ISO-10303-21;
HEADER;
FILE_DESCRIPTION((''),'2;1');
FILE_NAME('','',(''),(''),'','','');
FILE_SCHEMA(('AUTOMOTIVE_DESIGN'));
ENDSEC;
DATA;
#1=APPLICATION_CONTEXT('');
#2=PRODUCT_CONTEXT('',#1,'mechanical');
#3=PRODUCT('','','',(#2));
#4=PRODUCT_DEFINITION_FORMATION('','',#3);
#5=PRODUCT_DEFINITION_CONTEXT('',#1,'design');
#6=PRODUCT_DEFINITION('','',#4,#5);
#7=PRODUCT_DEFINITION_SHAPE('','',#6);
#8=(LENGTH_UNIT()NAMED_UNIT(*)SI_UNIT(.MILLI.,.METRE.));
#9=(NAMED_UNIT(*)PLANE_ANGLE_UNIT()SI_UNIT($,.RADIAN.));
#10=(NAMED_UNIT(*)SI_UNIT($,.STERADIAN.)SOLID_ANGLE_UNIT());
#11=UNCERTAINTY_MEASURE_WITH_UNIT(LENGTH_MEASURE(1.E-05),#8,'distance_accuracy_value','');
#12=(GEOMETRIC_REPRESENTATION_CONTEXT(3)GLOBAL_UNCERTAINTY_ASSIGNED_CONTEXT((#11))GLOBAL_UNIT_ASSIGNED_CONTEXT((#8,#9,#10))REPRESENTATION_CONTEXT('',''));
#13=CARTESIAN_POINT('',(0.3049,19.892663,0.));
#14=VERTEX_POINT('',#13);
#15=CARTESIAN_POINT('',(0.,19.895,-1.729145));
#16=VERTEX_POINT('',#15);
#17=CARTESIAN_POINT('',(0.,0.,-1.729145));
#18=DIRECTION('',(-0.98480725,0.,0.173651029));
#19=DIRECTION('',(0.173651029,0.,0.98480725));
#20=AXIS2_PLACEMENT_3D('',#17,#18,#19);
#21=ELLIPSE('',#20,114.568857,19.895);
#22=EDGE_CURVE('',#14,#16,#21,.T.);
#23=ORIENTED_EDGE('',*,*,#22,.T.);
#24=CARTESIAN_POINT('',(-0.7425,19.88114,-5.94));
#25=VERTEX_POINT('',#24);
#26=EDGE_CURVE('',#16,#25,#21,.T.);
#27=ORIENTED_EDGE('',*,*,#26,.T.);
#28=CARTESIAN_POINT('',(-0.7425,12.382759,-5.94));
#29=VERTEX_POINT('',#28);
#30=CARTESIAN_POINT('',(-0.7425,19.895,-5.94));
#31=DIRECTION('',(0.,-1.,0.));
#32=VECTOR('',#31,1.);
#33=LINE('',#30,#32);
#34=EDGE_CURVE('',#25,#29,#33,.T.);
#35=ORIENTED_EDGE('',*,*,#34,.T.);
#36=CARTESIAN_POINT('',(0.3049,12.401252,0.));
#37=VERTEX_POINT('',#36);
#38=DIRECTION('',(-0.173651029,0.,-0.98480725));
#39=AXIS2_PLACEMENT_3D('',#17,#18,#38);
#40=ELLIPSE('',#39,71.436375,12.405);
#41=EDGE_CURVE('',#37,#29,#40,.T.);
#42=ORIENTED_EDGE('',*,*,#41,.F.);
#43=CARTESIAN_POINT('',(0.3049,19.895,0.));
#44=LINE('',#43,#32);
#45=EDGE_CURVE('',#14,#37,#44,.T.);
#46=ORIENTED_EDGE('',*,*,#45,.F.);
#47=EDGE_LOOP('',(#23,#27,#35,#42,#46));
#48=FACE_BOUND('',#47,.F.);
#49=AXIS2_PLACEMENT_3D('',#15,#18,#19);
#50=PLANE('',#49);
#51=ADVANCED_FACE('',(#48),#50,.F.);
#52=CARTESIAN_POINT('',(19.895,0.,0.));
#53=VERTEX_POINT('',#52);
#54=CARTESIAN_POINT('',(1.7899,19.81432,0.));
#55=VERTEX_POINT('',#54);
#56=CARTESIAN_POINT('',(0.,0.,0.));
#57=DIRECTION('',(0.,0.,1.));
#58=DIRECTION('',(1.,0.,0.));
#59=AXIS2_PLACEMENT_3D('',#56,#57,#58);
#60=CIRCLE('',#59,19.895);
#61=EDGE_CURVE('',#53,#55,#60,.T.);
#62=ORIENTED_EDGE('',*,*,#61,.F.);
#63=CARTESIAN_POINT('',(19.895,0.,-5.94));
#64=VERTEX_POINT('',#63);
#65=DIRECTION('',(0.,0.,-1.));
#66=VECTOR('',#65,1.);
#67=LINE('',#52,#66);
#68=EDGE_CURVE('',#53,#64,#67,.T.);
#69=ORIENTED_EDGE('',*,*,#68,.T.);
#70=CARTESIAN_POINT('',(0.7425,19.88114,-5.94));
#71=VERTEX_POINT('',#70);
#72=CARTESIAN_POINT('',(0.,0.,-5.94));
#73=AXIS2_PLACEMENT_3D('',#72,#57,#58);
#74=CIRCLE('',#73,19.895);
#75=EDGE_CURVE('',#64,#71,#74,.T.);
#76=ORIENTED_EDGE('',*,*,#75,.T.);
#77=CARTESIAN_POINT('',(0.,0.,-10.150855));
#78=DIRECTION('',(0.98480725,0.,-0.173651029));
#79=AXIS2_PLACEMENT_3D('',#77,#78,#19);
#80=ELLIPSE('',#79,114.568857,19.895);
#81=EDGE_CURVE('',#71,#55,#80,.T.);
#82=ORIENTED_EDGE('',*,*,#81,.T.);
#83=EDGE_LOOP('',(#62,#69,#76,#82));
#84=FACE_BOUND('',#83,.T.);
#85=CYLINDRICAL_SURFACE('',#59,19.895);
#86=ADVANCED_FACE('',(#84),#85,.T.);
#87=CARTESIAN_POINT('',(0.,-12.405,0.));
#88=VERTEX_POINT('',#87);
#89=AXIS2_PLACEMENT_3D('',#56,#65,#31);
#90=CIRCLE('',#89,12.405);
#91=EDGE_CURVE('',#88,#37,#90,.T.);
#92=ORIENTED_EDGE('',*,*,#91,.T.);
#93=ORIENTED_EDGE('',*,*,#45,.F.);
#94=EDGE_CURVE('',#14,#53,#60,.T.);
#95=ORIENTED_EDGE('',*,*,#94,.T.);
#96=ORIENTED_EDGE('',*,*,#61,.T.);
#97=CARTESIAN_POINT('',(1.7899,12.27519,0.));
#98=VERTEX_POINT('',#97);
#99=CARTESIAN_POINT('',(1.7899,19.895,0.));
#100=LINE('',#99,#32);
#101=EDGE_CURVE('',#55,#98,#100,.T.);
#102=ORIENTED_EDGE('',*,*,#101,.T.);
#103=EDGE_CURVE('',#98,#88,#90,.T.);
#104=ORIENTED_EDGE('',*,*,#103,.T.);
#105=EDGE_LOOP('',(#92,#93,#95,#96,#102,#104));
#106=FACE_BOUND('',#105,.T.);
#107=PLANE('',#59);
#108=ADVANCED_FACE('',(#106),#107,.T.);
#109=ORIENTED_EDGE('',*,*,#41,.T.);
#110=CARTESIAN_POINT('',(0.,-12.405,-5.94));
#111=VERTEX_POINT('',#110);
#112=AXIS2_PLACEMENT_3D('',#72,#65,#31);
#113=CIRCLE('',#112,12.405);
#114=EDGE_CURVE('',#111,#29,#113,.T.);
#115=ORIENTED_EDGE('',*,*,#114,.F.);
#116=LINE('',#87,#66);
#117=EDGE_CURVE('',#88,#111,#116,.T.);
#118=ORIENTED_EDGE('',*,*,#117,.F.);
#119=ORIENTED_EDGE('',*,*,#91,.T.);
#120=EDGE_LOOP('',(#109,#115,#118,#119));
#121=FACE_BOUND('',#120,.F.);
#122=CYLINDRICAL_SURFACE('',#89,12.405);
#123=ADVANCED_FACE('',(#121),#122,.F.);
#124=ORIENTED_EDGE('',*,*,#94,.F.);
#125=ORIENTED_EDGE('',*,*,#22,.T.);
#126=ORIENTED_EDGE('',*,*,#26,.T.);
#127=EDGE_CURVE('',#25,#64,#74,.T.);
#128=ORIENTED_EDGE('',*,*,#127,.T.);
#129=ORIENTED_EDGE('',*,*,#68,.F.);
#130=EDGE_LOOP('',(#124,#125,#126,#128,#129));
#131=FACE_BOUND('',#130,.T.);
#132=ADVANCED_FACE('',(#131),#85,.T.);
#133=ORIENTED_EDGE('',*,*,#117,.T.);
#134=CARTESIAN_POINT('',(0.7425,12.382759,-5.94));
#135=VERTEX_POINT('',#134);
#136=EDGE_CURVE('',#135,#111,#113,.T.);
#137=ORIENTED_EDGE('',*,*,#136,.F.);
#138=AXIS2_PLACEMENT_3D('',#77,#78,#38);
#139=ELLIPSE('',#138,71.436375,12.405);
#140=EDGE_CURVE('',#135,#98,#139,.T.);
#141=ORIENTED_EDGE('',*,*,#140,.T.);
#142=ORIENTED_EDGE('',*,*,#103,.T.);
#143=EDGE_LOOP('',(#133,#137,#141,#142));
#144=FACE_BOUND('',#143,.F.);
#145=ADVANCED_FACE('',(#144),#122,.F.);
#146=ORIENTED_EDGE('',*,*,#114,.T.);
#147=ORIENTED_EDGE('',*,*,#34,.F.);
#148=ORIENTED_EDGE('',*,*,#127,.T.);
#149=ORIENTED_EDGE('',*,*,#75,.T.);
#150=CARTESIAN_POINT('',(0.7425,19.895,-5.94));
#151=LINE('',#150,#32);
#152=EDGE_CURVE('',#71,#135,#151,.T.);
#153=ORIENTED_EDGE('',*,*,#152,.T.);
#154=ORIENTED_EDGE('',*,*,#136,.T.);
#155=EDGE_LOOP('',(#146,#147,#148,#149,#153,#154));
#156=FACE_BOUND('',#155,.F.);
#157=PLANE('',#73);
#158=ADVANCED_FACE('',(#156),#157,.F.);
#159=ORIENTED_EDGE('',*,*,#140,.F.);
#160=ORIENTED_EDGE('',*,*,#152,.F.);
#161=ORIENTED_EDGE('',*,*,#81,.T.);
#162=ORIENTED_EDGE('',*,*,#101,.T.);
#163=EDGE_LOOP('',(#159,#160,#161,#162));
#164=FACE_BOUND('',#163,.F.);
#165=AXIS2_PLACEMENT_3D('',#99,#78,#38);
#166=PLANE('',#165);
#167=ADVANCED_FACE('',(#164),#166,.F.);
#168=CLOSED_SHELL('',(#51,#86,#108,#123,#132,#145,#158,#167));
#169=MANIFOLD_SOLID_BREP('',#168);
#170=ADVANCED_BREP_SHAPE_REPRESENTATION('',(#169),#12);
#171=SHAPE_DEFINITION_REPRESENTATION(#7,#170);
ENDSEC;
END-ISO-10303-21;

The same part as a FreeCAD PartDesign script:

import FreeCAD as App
import Part
import Sketcher
from FreeCAD import Vector
Q = App.Units.Quantity


def add_polygon(sketch, points):
    """Adds a closed chain of lines whose ends are joined by coincident constraints."""
    first, n = sketch.GeometryCount, len(points)
    for a, b in zip(points, points[1:] + points[:1]):
        sketch.addGeometry(Part.LineSegment(App.Vector(*a, 0), App.Vector(*b, 0)), False)
    for i in range(n):
        sketch.addConstraint(Sketcher.Constraint("Coincident", first + i, 2, first + (i + 1) % n, 1))

doc = App.newDocument("Part")
body = doc.addObject("PartDesign::Body", "Body")

# Sketch on XY plane
sketch1 = doc.addObject("Sketcher::SketchObject", "Sketch")
body.addObject(sketch1)
sketch1.AttachmentSupport = (doc.XY_Plane, [""])
sketch1.MapMode = "FlatFace"
sketch1.addGeometry(Part.Circle(Vector(0, 0, 0), Vector(0, 0, 1), 20), False)
sketch1.addConstraint([
    Sketcher.Constraint("Coincident", 0, 3, -1, 1),
    Sketcher.Constraint("Diameter", 0, Q("39.79 mm")),
])
pad1 = doc.addObject("PartDesign::Pad", "Pad")
body.addObject(pad1)
pad1.Profile = sketch1
pad1.Length = 5.94
pad1.Reversed = True

# Sketch on XY plane
sketch2 = doc.addObject("Sketcher::SketchObject", "Sketch001")
body.addObject(sketch2)
sketch2.AttachmentSupport = (doc.XY_Plane, [""])
sketch2.MapMode = "FlatFace"
sketch2.addGeometry(Part.Circle(Vector(0, 0, 0), Vector(0, 0, 1), 12), False)
sketch2.addConstraint([
    Sketcher.Constraint("Coincident", 0, 3, -1, 1),
    Sketcher.Constraint("Diameter", 0, Q("24.81 mm")),
])
doc.recompute()
hole = doc.addObject("PartDesign::Hole", "Hole")
body.addObject(hole)
hole.Profile = sketch2
hole.ThreadType = "None"
hole.Diameter = 24.81
hole.DepthType = "ThroughAll"

# Sketch on XZ plane
sketch3 = doc.addObject("Sketcher::SketchObject", "Sketch002")
body.addObject(sketch3)
sketch3.AttachmentSupport = (doc.XZ_Plane, [""])
sketch3.MapMode = "FlatFace"
sketch3.AttachmentOffset = App.Placement(Vector(0, 0, -19.895), App.Rotation())
add_polygon(sketch3, [(0.3, 0), (1.8, 0), (0.7, -5.9), (-0.7, -5.9)])  # lines 0-3
sketch3.addConstraint([
    Sketcher.Constraint("Horizontal", 0),
    Sketcher.Constraint("Horizontal", 2),
    Sketcher.Constraint("PointOnObject", 0, 2, -1),
    Sketcher.Constraint("Parallel", 1, 3),
    Sketcher.Constraint("Angle", 3, Q("79.9998 deg")),
    Sketcher.Constraint("DistanceX", -1, 1, 1, 2, Q("0.7425 mm")),
    Sketcher.Constraint("DistanceX", 2, 2, -1, 1, Q("0.7425 mm")),
    Sketcher.Constraint("DistanceX", -1, 1, 0, 2, Q("1.79 mm")),
])
pocket1 = doc.addObject("PartDesign::Pocket", "Pocket")
body.addObject(pocket1)
pocket1.Profile = sketch3
pocket1.Length = 19.895
pocket1.Reversed = True

doc.recompute()
